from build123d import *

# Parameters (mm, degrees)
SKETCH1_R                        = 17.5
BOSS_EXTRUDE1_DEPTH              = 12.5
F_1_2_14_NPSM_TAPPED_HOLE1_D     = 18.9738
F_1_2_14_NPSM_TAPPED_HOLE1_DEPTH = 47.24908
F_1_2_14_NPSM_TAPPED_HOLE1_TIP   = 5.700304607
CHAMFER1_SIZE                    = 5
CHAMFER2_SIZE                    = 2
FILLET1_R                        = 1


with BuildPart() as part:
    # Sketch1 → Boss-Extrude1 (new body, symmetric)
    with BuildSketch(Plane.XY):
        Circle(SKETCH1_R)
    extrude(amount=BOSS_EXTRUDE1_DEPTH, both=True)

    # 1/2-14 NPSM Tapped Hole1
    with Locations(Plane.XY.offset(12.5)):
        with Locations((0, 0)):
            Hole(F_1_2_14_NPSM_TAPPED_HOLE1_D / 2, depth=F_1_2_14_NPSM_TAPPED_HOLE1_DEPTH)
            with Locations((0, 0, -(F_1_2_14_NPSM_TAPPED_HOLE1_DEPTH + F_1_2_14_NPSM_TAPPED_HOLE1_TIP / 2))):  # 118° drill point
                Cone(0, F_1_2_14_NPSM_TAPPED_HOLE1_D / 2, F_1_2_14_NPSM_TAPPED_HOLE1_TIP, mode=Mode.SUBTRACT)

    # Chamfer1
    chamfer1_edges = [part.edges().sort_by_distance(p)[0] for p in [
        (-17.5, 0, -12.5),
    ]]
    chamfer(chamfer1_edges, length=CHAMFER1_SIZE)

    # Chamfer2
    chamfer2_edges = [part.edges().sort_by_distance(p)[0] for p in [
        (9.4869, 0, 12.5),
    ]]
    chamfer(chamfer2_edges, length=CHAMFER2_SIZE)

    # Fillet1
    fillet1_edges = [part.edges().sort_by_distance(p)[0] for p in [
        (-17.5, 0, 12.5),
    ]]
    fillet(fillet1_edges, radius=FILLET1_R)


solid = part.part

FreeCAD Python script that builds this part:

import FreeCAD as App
import Part
import Sketcher
from FreeCAD import Vector


def edges_at(feature, points):
    """Names of the edges that pass closest to the given points."""
    edges = feature.Shape.Edges
    near = lambda p: min(range(len(edges)), key=lambda i: edges[i].distToShape(Part.Vertex(*p))[0])
    return sorted({f"Edge{near(p) + 1}" for p in points})

doc = App.newDocument("Part")
body = doc.addObject("PartDesign::Body", "Body")

# Sketch on XY plane
sketch1 = doc.addObject("Sketcher::SketchObject", "Sketch")
body.addObject(sketch1)
sketch1.AttachmentSupport = (doc.XY_Plane, [""])
sketch1.MapMode = "FlatFace"
sketch1.addGeometry(Part.Circle(Vector(0, 0, 0), Vector(0, 0, 1), 18), False)
sketch1.addConstraint([
    Sketcher.Constraint("Coincident", 0, 3, -1, 1),
    Sketcher.Constraint("Diameter", 0, 35.0),
])
pad1 = doc.addObject("PartDesign::Pad", "Pad")
body.addObject(pad1)
pad1.Profile = sketch1
pad1.Length = 25
pad1.Midplane = True

# Sketch on XY plane
sketch2 = doc.addObject("Sketcher::SketchObject", "Sketch001")
body.addObject(sketch2)
sketch2.AttachmentSupport = (doc.XY_Plane, [""])
sketch2.MapMode = "FlatFace"
sketch2.AttachmentOffset = App.Placement(Vector(0, 0, 12.5), App.Rotation())
sketch2.addGeometry(Part.Circle(Vector(0, 0, 0), Vector(0, 0, 1), 9), False)
sketch2.addConstraint([
    Sketcher.Constraint("Coincident", 0, 3, -1, 1),
    Sketcher.Constraint("Diameter", 0, 18.9738),
])
doc.recompute()
hole = doc.addObject("PartDesign::Hole", "Hole")
body.addObject(hole)
hole.Profile = sketch2
hole.ThreadType = "None"
hole.Diameter = 18.9738
hole.DepthType = "Dimension"
hole.Depth = 47.24908
hole.DrillPoint = "Angled"
hole.DrillPointAngle = 118
doc.recompute()

chamfer = doc.addObject("PartDesign::Chamfer", "Chamfer")
body.addObject(chamfer)
chamfer.Base = (hole, edges_at(hole, [(-17.5, 0, -12.5)]))
chamfer.Size = 5
doc.recompute()

chamfer2 = doc.addObject("PartDesign::Chamfer", "Chamfer001")
body.addObject(chamfer2)
chamfer2.Base = (chamfer, edges_at(chamfer, [(9.487, 0, 12.5)]))
chamfer2.Size = 2
doc.recompute()

fillet = doc.addObject("PartDesign::Fillet", "Fillet")
body.addObject(fillet)
fillet.Base = (chamfer2, edges_at(chamfer2, [(-17.5, 0, 12.5)]))
fillet.Radius = 1

doc.recompute()
